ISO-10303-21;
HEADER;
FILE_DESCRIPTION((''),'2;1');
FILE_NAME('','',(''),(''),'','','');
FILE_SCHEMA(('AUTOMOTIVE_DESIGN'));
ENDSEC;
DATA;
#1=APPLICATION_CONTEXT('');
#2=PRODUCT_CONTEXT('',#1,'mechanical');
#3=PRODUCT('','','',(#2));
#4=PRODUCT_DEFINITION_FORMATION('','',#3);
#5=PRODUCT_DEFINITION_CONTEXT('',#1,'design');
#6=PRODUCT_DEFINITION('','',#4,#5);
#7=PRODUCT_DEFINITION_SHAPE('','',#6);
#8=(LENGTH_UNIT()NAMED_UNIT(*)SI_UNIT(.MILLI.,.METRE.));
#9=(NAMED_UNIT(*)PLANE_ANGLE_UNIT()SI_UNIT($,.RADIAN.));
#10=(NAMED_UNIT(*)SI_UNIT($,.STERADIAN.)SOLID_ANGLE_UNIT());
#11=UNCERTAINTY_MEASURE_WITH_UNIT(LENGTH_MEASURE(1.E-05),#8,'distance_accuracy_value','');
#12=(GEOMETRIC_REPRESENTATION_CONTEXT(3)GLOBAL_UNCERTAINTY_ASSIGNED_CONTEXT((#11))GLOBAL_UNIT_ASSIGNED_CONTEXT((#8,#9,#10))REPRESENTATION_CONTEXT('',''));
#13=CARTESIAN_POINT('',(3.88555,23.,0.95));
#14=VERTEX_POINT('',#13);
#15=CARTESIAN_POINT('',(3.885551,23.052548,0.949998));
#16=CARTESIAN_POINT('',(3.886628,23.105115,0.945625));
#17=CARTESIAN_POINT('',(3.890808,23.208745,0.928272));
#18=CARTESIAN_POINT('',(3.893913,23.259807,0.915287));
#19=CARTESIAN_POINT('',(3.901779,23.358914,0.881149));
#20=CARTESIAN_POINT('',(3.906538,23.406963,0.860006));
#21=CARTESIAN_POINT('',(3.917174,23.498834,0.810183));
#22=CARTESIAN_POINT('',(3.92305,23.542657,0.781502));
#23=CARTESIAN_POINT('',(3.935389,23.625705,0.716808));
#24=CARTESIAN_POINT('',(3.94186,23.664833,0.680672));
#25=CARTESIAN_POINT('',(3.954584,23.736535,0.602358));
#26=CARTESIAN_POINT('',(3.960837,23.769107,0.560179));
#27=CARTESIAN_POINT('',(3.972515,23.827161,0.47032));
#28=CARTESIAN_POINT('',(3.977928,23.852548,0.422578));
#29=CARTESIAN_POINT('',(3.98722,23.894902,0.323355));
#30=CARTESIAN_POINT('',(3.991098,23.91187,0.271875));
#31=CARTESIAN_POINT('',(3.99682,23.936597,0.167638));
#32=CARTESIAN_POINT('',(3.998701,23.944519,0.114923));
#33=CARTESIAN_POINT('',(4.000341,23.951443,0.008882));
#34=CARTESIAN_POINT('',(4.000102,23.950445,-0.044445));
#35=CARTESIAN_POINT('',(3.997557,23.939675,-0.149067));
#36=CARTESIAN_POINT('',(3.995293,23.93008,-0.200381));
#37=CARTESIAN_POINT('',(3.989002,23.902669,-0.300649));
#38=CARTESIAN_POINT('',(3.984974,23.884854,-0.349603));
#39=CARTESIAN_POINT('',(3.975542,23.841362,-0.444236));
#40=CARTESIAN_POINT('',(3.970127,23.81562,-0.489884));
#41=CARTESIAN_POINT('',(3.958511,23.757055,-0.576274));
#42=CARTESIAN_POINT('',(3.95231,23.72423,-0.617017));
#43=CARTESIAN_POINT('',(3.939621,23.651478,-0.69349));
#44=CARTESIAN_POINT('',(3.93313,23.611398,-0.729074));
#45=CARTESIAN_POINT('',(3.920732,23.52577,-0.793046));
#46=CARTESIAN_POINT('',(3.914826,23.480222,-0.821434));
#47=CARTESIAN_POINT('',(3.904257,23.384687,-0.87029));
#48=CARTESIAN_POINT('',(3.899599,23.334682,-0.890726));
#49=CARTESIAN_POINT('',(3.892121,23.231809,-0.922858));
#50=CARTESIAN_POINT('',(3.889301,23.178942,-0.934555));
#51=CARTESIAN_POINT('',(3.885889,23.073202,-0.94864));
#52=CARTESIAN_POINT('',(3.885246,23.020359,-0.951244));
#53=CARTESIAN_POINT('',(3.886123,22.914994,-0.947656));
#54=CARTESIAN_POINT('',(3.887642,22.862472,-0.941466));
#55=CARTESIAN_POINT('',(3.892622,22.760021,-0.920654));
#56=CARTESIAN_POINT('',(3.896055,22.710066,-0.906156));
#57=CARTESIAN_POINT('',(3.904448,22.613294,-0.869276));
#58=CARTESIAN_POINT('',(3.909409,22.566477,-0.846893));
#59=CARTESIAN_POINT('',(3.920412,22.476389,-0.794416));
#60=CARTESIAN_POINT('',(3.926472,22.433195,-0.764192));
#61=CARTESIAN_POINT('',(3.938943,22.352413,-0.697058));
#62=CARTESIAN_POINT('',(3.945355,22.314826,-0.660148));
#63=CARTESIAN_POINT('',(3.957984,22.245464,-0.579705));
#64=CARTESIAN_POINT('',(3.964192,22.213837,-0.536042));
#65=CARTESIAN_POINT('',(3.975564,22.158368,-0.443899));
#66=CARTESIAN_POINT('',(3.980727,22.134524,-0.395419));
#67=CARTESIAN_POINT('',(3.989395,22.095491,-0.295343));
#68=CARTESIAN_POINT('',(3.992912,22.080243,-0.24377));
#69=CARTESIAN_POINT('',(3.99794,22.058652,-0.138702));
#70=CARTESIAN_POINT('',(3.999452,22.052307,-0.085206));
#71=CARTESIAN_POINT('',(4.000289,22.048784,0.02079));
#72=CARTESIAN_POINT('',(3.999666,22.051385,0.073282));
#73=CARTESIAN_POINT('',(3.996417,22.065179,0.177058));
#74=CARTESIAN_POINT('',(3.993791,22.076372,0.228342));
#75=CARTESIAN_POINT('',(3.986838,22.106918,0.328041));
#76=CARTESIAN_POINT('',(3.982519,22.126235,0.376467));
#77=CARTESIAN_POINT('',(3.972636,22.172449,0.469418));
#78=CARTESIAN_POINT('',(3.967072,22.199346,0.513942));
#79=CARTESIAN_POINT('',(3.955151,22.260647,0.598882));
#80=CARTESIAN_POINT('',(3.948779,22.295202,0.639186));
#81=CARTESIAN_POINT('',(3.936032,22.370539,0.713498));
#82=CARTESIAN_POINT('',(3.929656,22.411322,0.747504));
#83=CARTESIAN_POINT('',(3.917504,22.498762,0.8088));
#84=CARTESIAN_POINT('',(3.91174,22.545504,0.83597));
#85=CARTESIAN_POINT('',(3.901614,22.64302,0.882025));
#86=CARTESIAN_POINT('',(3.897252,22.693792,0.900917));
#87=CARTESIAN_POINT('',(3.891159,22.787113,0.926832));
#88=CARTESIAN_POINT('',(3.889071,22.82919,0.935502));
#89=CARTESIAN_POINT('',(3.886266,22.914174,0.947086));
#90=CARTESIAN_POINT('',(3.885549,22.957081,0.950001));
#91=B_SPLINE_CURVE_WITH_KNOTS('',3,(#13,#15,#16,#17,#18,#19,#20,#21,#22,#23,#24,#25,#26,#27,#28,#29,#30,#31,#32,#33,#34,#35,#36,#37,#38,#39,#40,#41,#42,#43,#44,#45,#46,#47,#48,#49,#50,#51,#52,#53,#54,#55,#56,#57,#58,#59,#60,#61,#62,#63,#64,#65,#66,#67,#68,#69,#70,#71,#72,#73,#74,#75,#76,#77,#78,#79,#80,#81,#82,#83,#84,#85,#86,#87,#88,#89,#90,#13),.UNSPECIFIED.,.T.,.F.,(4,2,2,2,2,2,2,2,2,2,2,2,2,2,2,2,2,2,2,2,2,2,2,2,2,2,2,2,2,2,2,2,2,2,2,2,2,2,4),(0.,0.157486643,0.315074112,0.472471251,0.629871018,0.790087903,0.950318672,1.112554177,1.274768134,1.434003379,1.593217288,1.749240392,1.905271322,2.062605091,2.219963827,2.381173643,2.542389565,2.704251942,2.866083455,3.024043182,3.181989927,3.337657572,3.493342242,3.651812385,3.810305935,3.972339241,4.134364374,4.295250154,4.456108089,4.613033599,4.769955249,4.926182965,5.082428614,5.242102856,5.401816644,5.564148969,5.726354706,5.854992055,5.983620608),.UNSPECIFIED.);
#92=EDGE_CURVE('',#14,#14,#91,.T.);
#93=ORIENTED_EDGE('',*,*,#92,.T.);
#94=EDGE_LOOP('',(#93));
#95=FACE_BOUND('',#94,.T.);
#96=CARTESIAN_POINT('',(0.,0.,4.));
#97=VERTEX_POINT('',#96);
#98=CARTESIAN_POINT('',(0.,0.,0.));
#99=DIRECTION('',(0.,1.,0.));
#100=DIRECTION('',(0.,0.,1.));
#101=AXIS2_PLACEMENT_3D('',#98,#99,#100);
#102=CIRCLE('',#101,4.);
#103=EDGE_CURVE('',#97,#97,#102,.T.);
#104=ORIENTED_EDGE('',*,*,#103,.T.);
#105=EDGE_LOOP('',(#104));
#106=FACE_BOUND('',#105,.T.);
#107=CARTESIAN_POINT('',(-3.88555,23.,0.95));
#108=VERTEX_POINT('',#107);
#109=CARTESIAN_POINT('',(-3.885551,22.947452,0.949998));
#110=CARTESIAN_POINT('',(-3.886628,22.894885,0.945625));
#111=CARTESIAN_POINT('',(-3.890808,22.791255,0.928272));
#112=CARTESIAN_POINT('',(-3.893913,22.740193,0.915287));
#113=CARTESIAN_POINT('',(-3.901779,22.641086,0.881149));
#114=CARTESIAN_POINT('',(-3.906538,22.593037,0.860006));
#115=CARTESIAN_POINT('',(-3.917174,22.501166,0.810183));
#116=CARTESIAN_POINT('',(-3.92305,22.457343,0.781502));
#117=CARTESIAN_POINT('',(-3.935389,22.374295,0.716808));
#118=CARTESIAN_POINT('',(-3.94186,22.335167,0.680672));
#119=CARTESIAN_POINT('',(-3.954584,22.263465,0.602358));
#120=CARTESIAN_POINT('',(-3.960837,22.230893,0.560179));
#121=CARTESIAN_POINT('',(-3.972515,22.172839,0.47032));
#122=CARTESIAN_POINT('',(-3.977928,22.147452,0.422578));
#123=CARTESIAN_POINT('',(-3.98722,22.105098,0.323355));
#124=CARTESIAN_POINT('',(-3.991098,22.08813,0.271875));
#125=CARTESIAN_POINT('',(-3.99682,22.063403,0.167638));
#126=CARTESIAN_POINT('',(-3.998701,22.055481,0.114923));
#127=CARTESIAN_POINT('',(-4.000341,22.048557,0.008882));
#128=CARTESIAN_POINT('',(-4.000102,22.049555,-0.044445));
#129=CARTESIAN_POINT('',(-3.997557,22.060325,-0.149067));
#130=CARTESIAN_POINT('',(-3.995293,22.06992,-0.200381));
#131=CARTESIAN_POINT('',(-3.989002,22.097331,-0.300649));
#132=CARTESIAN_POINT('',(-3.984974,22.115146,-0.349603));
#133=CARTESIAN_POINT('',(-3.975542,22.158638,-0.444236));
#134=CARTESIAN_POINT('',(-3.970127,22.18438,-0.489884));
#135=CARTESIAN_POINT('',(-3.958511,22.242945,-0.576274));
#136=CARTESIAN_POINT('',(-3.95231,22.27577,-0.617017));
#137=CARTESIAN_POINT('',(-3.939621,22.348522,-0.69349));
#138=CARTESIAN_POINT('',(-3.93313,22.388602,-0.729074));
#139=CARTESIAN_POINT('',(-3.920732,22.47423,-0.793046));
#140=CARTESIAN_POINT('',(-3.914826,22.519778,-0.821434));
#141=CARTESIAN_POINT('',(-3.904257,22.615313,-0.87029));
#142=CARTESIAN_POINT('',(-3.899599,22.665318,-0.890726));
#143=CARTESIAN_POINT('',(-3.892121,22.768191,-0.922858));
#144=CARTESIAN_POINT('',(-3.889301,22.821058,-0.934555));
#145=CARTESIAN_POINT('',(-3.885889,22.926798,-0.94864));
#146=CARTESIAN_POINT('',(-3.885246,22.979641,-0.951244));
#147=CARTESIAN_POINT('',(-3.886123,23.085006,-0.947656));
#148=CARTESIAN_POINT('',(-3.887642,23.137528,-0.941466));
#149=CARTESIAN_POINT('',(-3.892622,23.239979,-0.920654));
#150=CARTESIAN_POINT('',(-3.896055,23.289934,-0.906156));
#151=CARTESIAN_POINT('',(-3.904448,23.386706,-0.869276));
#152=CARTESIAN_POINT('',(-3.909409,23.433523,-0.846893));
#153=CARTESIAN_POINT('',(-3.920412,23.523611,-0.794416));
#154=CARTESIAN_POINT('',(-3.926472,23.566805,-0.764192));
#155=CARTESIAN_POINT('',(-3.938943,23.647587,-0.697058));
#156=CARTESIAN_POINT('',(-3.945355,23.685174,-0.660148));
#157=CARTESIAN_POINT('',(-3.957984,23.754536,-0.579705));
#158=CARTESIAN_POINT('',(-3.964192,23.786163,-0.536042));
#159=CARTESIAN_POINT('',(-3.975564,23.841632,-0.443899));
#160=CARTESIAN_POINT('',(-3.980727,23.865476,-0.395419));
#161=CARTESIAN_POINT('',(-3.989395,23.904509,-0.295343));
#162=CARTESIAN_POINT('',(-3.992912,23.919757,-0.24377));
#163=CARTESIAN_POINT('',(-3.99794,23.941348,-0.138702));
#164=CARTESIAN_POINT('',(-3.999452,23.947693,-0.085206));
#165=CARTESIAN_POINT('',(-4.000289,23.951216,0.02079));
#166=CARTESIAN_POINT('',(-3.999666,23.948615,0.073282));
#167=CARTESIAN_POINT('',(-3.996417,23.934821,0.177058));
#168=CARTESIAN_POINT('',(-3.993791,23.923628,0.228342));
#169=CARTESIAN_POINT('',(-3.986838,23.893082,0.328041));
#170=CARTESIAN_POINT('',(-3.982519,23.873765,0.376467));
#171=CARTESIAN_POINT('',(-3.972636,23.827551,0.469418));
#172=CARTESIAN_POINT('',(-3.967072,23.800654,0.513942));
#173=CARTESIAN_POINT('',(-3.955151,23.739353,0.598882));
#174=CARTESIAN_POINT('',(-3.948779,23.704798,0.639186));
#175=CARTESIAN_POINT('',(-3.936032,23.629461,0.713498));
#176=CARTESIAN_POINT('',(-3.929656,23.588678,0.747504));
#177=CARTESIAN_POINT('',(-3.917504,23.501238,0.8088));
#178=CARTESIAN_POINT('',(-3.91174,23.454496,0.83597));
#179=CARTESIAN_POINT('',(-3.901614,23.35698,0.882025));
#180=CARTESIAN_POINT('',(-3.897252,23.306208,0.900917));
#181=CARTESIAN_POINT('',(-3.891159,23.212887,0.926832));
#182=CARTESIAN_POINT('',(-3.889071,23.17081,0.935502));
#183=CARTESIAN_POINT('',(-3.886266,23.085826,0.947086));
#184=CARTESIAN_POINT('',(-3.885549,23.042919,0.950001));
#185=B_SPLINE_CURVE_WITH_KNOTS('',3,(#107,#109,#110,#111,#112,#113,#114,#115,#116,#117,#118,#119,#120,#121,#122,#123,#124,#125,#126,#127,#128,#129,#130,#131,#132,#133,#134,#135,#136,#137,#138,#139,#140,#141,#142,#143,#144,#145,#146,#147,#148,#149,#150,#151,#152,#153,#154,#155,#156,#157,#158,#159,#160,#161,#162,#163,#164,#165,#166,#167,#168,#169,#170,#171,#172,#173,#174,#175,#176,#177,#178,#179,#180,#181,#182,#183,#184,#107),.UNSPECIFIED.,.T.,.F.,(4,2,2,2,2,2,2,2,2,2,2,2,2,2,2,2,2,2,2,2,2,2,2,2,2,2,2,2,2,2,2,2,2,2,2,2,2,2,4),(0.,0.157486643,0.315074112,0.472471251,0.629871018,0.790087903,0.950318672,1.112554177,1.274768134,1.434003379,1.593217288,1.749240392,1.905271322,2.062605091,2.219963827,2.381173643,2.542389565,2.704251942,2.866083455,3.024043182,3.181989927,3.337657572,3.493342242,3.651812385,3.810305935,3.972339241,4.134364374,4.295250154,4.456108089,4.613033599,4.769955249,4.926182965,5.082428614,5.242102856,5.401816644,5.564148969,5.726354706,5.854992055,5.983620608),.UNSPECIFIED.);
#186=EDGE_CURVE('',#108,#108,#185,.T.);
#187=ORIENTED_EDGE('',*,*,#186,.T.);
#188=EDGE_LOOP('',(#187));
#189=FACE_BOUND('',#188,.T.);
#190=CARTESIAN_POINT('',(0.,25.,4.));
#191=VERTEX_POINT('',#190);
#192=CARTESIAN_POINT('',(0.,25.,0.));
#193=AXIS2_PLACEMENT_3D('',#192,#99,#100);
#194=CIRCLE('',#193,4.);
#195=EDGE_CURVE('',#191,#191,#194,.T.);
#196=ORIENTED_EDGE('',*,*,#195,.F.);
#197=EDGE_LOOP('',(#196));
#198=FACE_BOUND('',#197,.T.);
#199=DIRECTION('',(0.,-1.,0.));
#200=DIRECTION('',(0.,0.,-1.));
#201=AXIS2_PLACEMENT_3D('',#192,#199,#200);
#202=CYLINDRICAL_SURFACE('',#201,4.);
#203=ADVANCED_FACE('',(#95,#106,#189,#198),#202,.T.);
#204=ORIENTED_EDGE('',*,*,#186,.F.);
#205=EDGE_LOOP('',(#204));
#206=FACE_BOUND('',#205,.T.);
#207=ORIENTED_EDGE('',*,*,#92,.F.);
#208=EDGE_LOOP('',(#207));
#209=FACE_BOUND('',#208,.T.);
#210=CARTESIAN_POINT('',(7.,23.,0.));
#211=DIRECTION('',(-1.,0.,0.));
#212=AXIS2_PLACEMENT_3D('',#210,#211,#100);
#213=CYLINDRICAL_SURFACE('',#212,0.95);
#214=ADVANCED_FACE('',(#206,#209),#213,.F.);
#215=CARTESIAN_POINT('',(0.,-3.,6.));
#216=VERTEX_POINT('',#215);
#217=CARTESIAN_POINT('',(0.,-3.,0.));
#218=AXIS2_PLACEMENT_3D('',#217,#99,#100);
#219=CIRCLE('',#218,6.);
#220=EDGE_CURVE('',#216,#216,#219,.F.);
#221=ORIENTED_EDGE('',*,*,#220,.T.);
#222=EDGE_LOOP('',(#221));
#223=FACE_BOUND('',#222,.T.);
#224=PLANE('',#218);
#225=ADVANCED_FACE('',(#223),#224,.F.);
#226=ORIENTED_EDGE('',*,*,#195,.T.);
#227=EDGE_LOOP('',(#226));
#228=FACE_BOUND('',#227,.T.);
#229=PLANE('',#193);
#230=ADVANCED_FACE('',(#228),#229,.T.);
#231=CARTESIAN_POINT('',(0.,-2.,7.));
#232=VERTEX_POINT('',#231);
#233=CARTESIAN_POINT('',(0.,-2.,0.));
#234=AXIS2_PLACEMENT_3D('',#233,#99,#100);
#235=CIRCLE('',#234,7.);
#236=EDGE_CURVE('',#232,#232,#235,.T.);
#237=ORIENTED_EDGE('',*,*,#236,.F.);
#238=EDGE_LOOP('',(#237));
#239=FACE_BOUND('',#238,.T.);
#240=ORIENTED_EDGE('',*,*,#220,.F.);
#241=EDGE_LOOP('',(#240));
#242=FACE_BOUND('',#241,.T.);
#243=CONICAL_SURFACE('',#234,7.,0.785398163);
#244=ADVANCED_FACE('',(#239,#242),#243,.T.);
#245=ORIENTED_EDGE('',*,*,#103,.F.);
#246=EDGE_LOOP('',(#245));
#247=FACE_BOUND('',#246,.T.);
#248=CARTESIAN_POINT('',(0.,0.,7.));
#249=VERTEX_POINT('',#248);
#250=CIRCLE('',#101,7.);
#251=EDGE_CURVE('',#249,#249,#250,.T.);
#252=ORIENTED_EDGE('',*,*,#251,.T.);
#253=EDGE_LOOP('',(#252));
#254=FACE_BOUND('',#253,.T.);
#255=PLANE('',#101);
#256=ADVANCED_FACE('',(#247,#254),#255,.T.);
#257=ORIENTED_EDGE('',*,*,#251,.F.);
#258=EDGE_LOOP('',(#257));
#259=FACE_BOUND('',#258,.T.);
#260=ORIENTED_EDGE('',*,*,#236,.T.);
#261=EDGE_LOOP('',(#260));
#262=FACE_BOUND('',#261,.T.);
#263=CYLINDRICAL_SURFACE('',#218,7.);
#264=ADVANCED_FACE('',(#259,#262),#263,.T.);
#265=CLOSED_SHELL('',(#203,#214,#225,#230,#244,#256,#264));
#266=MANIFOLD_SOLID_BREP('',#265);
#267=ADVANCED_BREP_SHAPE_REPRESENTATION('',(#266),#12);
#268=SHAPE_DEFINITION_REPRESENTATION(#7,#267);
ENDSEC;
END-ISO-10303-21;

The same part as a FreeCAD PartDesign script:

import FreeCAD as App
import Part
import Sketcher


def edges_at(feature, points):
    """Names of the edges that pass closest to the given points."""
    edges = feature.Shape.Edges
    near = lambda p: min(range(len(edges)), key=lambda i: edges[i].distToShape(Part.Vertex(*p))[0])
    return sorted({f"Edge{near(p) + 1}" for p in points})

doc = App.newDocument("Part")
body = doc.addObject("PartDesign::Body", "Body")

# Sketch on XZ plane
sketch1 = doc.addObject("Sketcher::SketchObject", "Sketch")
body.addObject(sketch1)
sketch1.AttachmentSupport = (doc.XZ_Plane, [""])
sketch1.MapMode = "FlatFace"
sketch1.addGeometry(Part.Circle(App.Vector(0, 0, 0), App.Vector(0, 0, 1), 7), False)
sketch1.addConstraint([
    Sketcher.Constraint("Coincident", 0, 3, -1, 1),
    Sketcher.Constraint("Diameter", 0, 14.0),
])
pad1 = doc.addObject("PartDesign::Pad", "Pad")
body.addObject(pad1)
pad1.Profile = sketch1
pad1.Length = 3

# Sketch on XZ plane
sketch2 = doc.addObject("Sketcher::SketchObject", "Sketch001")
body.addObject(sketch2)
sketch2.AttachmentSupport = (doc.XZ_Plane, [""])
sketch2.MapMode = "FlatFace"
sketch2.addGeometry(Part.Circle(App.Vector(0, 0, 0), App.Vector(0, 0, 1), 4), False)
sketch2.addConstraint([
    Sketcher.Constraint("Coincident", 0, 3, -1, 1),
    Sketcher.Constraint("Diameter", 0, 8.0),
])
pad2 = doc.addObject("PartDesign::Pad", "Pad001")
body.addObject(pad2)
pad2.Profile = sketch2
pad2.Length = 25
pad2.Reversed = True

# Sketch on YZ plane
sketch3 = doc.addObject("Sketcher::SketchObject", "Sketch002")
body.addObject(sketch3)
sketch3.AttachmentSupport = (doc.YZ_Plane, [""])
sketch3.MapMode = "FlatFace"
sketch3.AttachmentOffset = App.Placement(App.Vector(0, 0, -4), App.Rotation())
sketch3.addGeometry(Part.Circle(App.Vector(23, 0, 0), App.Vector(0, 0, 1), 0.9), False)
sketch3.addConstraint([
    Sketcher.Constraint("PointOnObject", 0, 3, -1),
    Sketcher.Constraint("Diameter", 0, 1.9),
    Sketcher.Constraint("DistanceX", -1, 1, 0, 3, 23.0),
])
pocket1 = doc.addObject("PartDesign::Pocket", "Pocket")
body.addObject(pocket1)
pocket1.Profile = sketch3
pocket1.Type = "ThroughAll"
pocket1.Reversed = True
doc.recompute()

chamfer = doc.addObject("PartDesign::Chamfer", "Chamfer")
body.addObject(chamfer)
chamfer.Base = (pocket1, edges_at(pocket1, [(0, -3, -7)]))
chamfer.Size = 1

doc.recompute()
